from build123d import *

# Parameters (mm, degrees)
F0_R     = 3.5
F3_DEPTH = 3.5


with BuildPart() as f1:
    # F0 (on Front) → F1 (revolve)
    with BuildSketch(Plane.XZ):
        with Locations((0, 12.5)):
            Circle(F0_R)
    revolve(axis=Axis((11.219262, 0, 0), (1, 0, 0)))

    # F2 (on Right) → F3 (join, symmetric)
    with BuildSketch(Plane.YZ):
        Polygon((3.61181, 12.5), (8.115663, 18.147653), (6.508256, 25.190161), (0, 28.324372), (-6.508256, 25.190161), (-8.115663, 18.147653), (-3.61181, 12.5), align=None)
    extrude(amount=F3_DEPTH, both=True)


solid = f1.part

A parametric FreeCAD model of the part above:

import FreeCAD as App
import Part
import Sketcher
Q = App.Units.Quantity


def add_polygon(sketch, points):
    """Adds a closed chain of lines whose ends are joined by coincident constraints."""
    first, n = sketch.GeometryCount, len(points)
    for a, b in zip(points, points[1:] + points[:1]):
        sketch.addGeometry(Part.LineSegment(App.Vector(*a, 0), App.Vector(*b, 0)), False)
    for i in range(n):
        sketch.addConstraint(Sketcher.Constraint("Coincident", first + i, 2, first + (i + 1) % n, 1))

doc = App.newDocument("Part")
body = doc.addObject("PartDesign::Body", "Body")

# Sketch on XZ plane
sketch1 = doc.addObject("Sketcher::SketchObject", "Sketch")
body.addObject(sketch1)
sketch1.AttachmentSupport = (doc.XZ_Plane, [""])
sketch1.MapMode = "FlatFace"
sketch1.addGeometry(Part.Circle(App.Vector(0, 12.5, 0), App.Vector(0, 0, 1), 3.5), False)
sketch1.addConstraint([
    Sketcher.Constraint("PointOnObject", 0, 3, -2),
    Sketcher.Constraint("Diameter", 0, Q("7 mm")),
    Sketcher.Constraint("DistanceY", -1, 1, 0, 3, Q("12.5 mm")),
])
revolution = doc.addObject("PartDesign::Revolution", "Revolution")
body.addObject(revolution)
revolution.Profile = sketch1
revolution.ReferenceAxis = (sketch1, ["H_Axis"])
revolution.Angle = 360

# Sketch on YZ plane
sketch2 = doc.addObject("Sketcher::SketchObject", "Sketch001")
body.addObject(sketch2)
sketch2.AttachmentSupport = (doc.YZ_Plane, [""])
sketch2.MapMode = "FlatFace"
add_polygon(sketch2, [(4, 12), (8, 18), (7, 25), (0, 28), (-7, 25), (-8, 18), (-4, 12)])  # lines 0-6
sketch2.addConstraint([
    Sketcher.Constraint("Horizontal", 6),
    Sketcher.Constraint("Symmetric", 1, 2, 3, 2, -2),
    Sketcher.Constraint("Symmetric", 0, 2, 4, 2, -2),
    Sketcher.Constraint("PointOnObject", 2, 2, -2),
    Sketcher.Constraint("Equal", 0, 1),
    Sketcher.Constraint("Equal", 1, 2),
    Sketcher.Constraint("Equal", 4, 5),
    Sketcher.Constraint("DistanceY", -1, 1, 5, 2, Q("12.5 mm")),
    Sketcher.Constraint("DistanceX", 6, 1, 6, 2, Q("7.22362 mm")),
    Sketcher.Constraint("Distance", 0, Q("7.223619 mm")),
    Sketcher.Constraint("DistanceY", -1, 1, 1, 2, Q("25.190161 mm")),
    Sketcher.Constraint("DistanceY", 0, 2, 1, 2, Q("7.042508 mm")),
])
pad1 = doc.addObject("PartDesign::Pad", "Pad")
body.addObject(pad1)
pad1.Profile = sketch2
pad1.Length = 7
pad1.Midplane = True

doc.recompute()
